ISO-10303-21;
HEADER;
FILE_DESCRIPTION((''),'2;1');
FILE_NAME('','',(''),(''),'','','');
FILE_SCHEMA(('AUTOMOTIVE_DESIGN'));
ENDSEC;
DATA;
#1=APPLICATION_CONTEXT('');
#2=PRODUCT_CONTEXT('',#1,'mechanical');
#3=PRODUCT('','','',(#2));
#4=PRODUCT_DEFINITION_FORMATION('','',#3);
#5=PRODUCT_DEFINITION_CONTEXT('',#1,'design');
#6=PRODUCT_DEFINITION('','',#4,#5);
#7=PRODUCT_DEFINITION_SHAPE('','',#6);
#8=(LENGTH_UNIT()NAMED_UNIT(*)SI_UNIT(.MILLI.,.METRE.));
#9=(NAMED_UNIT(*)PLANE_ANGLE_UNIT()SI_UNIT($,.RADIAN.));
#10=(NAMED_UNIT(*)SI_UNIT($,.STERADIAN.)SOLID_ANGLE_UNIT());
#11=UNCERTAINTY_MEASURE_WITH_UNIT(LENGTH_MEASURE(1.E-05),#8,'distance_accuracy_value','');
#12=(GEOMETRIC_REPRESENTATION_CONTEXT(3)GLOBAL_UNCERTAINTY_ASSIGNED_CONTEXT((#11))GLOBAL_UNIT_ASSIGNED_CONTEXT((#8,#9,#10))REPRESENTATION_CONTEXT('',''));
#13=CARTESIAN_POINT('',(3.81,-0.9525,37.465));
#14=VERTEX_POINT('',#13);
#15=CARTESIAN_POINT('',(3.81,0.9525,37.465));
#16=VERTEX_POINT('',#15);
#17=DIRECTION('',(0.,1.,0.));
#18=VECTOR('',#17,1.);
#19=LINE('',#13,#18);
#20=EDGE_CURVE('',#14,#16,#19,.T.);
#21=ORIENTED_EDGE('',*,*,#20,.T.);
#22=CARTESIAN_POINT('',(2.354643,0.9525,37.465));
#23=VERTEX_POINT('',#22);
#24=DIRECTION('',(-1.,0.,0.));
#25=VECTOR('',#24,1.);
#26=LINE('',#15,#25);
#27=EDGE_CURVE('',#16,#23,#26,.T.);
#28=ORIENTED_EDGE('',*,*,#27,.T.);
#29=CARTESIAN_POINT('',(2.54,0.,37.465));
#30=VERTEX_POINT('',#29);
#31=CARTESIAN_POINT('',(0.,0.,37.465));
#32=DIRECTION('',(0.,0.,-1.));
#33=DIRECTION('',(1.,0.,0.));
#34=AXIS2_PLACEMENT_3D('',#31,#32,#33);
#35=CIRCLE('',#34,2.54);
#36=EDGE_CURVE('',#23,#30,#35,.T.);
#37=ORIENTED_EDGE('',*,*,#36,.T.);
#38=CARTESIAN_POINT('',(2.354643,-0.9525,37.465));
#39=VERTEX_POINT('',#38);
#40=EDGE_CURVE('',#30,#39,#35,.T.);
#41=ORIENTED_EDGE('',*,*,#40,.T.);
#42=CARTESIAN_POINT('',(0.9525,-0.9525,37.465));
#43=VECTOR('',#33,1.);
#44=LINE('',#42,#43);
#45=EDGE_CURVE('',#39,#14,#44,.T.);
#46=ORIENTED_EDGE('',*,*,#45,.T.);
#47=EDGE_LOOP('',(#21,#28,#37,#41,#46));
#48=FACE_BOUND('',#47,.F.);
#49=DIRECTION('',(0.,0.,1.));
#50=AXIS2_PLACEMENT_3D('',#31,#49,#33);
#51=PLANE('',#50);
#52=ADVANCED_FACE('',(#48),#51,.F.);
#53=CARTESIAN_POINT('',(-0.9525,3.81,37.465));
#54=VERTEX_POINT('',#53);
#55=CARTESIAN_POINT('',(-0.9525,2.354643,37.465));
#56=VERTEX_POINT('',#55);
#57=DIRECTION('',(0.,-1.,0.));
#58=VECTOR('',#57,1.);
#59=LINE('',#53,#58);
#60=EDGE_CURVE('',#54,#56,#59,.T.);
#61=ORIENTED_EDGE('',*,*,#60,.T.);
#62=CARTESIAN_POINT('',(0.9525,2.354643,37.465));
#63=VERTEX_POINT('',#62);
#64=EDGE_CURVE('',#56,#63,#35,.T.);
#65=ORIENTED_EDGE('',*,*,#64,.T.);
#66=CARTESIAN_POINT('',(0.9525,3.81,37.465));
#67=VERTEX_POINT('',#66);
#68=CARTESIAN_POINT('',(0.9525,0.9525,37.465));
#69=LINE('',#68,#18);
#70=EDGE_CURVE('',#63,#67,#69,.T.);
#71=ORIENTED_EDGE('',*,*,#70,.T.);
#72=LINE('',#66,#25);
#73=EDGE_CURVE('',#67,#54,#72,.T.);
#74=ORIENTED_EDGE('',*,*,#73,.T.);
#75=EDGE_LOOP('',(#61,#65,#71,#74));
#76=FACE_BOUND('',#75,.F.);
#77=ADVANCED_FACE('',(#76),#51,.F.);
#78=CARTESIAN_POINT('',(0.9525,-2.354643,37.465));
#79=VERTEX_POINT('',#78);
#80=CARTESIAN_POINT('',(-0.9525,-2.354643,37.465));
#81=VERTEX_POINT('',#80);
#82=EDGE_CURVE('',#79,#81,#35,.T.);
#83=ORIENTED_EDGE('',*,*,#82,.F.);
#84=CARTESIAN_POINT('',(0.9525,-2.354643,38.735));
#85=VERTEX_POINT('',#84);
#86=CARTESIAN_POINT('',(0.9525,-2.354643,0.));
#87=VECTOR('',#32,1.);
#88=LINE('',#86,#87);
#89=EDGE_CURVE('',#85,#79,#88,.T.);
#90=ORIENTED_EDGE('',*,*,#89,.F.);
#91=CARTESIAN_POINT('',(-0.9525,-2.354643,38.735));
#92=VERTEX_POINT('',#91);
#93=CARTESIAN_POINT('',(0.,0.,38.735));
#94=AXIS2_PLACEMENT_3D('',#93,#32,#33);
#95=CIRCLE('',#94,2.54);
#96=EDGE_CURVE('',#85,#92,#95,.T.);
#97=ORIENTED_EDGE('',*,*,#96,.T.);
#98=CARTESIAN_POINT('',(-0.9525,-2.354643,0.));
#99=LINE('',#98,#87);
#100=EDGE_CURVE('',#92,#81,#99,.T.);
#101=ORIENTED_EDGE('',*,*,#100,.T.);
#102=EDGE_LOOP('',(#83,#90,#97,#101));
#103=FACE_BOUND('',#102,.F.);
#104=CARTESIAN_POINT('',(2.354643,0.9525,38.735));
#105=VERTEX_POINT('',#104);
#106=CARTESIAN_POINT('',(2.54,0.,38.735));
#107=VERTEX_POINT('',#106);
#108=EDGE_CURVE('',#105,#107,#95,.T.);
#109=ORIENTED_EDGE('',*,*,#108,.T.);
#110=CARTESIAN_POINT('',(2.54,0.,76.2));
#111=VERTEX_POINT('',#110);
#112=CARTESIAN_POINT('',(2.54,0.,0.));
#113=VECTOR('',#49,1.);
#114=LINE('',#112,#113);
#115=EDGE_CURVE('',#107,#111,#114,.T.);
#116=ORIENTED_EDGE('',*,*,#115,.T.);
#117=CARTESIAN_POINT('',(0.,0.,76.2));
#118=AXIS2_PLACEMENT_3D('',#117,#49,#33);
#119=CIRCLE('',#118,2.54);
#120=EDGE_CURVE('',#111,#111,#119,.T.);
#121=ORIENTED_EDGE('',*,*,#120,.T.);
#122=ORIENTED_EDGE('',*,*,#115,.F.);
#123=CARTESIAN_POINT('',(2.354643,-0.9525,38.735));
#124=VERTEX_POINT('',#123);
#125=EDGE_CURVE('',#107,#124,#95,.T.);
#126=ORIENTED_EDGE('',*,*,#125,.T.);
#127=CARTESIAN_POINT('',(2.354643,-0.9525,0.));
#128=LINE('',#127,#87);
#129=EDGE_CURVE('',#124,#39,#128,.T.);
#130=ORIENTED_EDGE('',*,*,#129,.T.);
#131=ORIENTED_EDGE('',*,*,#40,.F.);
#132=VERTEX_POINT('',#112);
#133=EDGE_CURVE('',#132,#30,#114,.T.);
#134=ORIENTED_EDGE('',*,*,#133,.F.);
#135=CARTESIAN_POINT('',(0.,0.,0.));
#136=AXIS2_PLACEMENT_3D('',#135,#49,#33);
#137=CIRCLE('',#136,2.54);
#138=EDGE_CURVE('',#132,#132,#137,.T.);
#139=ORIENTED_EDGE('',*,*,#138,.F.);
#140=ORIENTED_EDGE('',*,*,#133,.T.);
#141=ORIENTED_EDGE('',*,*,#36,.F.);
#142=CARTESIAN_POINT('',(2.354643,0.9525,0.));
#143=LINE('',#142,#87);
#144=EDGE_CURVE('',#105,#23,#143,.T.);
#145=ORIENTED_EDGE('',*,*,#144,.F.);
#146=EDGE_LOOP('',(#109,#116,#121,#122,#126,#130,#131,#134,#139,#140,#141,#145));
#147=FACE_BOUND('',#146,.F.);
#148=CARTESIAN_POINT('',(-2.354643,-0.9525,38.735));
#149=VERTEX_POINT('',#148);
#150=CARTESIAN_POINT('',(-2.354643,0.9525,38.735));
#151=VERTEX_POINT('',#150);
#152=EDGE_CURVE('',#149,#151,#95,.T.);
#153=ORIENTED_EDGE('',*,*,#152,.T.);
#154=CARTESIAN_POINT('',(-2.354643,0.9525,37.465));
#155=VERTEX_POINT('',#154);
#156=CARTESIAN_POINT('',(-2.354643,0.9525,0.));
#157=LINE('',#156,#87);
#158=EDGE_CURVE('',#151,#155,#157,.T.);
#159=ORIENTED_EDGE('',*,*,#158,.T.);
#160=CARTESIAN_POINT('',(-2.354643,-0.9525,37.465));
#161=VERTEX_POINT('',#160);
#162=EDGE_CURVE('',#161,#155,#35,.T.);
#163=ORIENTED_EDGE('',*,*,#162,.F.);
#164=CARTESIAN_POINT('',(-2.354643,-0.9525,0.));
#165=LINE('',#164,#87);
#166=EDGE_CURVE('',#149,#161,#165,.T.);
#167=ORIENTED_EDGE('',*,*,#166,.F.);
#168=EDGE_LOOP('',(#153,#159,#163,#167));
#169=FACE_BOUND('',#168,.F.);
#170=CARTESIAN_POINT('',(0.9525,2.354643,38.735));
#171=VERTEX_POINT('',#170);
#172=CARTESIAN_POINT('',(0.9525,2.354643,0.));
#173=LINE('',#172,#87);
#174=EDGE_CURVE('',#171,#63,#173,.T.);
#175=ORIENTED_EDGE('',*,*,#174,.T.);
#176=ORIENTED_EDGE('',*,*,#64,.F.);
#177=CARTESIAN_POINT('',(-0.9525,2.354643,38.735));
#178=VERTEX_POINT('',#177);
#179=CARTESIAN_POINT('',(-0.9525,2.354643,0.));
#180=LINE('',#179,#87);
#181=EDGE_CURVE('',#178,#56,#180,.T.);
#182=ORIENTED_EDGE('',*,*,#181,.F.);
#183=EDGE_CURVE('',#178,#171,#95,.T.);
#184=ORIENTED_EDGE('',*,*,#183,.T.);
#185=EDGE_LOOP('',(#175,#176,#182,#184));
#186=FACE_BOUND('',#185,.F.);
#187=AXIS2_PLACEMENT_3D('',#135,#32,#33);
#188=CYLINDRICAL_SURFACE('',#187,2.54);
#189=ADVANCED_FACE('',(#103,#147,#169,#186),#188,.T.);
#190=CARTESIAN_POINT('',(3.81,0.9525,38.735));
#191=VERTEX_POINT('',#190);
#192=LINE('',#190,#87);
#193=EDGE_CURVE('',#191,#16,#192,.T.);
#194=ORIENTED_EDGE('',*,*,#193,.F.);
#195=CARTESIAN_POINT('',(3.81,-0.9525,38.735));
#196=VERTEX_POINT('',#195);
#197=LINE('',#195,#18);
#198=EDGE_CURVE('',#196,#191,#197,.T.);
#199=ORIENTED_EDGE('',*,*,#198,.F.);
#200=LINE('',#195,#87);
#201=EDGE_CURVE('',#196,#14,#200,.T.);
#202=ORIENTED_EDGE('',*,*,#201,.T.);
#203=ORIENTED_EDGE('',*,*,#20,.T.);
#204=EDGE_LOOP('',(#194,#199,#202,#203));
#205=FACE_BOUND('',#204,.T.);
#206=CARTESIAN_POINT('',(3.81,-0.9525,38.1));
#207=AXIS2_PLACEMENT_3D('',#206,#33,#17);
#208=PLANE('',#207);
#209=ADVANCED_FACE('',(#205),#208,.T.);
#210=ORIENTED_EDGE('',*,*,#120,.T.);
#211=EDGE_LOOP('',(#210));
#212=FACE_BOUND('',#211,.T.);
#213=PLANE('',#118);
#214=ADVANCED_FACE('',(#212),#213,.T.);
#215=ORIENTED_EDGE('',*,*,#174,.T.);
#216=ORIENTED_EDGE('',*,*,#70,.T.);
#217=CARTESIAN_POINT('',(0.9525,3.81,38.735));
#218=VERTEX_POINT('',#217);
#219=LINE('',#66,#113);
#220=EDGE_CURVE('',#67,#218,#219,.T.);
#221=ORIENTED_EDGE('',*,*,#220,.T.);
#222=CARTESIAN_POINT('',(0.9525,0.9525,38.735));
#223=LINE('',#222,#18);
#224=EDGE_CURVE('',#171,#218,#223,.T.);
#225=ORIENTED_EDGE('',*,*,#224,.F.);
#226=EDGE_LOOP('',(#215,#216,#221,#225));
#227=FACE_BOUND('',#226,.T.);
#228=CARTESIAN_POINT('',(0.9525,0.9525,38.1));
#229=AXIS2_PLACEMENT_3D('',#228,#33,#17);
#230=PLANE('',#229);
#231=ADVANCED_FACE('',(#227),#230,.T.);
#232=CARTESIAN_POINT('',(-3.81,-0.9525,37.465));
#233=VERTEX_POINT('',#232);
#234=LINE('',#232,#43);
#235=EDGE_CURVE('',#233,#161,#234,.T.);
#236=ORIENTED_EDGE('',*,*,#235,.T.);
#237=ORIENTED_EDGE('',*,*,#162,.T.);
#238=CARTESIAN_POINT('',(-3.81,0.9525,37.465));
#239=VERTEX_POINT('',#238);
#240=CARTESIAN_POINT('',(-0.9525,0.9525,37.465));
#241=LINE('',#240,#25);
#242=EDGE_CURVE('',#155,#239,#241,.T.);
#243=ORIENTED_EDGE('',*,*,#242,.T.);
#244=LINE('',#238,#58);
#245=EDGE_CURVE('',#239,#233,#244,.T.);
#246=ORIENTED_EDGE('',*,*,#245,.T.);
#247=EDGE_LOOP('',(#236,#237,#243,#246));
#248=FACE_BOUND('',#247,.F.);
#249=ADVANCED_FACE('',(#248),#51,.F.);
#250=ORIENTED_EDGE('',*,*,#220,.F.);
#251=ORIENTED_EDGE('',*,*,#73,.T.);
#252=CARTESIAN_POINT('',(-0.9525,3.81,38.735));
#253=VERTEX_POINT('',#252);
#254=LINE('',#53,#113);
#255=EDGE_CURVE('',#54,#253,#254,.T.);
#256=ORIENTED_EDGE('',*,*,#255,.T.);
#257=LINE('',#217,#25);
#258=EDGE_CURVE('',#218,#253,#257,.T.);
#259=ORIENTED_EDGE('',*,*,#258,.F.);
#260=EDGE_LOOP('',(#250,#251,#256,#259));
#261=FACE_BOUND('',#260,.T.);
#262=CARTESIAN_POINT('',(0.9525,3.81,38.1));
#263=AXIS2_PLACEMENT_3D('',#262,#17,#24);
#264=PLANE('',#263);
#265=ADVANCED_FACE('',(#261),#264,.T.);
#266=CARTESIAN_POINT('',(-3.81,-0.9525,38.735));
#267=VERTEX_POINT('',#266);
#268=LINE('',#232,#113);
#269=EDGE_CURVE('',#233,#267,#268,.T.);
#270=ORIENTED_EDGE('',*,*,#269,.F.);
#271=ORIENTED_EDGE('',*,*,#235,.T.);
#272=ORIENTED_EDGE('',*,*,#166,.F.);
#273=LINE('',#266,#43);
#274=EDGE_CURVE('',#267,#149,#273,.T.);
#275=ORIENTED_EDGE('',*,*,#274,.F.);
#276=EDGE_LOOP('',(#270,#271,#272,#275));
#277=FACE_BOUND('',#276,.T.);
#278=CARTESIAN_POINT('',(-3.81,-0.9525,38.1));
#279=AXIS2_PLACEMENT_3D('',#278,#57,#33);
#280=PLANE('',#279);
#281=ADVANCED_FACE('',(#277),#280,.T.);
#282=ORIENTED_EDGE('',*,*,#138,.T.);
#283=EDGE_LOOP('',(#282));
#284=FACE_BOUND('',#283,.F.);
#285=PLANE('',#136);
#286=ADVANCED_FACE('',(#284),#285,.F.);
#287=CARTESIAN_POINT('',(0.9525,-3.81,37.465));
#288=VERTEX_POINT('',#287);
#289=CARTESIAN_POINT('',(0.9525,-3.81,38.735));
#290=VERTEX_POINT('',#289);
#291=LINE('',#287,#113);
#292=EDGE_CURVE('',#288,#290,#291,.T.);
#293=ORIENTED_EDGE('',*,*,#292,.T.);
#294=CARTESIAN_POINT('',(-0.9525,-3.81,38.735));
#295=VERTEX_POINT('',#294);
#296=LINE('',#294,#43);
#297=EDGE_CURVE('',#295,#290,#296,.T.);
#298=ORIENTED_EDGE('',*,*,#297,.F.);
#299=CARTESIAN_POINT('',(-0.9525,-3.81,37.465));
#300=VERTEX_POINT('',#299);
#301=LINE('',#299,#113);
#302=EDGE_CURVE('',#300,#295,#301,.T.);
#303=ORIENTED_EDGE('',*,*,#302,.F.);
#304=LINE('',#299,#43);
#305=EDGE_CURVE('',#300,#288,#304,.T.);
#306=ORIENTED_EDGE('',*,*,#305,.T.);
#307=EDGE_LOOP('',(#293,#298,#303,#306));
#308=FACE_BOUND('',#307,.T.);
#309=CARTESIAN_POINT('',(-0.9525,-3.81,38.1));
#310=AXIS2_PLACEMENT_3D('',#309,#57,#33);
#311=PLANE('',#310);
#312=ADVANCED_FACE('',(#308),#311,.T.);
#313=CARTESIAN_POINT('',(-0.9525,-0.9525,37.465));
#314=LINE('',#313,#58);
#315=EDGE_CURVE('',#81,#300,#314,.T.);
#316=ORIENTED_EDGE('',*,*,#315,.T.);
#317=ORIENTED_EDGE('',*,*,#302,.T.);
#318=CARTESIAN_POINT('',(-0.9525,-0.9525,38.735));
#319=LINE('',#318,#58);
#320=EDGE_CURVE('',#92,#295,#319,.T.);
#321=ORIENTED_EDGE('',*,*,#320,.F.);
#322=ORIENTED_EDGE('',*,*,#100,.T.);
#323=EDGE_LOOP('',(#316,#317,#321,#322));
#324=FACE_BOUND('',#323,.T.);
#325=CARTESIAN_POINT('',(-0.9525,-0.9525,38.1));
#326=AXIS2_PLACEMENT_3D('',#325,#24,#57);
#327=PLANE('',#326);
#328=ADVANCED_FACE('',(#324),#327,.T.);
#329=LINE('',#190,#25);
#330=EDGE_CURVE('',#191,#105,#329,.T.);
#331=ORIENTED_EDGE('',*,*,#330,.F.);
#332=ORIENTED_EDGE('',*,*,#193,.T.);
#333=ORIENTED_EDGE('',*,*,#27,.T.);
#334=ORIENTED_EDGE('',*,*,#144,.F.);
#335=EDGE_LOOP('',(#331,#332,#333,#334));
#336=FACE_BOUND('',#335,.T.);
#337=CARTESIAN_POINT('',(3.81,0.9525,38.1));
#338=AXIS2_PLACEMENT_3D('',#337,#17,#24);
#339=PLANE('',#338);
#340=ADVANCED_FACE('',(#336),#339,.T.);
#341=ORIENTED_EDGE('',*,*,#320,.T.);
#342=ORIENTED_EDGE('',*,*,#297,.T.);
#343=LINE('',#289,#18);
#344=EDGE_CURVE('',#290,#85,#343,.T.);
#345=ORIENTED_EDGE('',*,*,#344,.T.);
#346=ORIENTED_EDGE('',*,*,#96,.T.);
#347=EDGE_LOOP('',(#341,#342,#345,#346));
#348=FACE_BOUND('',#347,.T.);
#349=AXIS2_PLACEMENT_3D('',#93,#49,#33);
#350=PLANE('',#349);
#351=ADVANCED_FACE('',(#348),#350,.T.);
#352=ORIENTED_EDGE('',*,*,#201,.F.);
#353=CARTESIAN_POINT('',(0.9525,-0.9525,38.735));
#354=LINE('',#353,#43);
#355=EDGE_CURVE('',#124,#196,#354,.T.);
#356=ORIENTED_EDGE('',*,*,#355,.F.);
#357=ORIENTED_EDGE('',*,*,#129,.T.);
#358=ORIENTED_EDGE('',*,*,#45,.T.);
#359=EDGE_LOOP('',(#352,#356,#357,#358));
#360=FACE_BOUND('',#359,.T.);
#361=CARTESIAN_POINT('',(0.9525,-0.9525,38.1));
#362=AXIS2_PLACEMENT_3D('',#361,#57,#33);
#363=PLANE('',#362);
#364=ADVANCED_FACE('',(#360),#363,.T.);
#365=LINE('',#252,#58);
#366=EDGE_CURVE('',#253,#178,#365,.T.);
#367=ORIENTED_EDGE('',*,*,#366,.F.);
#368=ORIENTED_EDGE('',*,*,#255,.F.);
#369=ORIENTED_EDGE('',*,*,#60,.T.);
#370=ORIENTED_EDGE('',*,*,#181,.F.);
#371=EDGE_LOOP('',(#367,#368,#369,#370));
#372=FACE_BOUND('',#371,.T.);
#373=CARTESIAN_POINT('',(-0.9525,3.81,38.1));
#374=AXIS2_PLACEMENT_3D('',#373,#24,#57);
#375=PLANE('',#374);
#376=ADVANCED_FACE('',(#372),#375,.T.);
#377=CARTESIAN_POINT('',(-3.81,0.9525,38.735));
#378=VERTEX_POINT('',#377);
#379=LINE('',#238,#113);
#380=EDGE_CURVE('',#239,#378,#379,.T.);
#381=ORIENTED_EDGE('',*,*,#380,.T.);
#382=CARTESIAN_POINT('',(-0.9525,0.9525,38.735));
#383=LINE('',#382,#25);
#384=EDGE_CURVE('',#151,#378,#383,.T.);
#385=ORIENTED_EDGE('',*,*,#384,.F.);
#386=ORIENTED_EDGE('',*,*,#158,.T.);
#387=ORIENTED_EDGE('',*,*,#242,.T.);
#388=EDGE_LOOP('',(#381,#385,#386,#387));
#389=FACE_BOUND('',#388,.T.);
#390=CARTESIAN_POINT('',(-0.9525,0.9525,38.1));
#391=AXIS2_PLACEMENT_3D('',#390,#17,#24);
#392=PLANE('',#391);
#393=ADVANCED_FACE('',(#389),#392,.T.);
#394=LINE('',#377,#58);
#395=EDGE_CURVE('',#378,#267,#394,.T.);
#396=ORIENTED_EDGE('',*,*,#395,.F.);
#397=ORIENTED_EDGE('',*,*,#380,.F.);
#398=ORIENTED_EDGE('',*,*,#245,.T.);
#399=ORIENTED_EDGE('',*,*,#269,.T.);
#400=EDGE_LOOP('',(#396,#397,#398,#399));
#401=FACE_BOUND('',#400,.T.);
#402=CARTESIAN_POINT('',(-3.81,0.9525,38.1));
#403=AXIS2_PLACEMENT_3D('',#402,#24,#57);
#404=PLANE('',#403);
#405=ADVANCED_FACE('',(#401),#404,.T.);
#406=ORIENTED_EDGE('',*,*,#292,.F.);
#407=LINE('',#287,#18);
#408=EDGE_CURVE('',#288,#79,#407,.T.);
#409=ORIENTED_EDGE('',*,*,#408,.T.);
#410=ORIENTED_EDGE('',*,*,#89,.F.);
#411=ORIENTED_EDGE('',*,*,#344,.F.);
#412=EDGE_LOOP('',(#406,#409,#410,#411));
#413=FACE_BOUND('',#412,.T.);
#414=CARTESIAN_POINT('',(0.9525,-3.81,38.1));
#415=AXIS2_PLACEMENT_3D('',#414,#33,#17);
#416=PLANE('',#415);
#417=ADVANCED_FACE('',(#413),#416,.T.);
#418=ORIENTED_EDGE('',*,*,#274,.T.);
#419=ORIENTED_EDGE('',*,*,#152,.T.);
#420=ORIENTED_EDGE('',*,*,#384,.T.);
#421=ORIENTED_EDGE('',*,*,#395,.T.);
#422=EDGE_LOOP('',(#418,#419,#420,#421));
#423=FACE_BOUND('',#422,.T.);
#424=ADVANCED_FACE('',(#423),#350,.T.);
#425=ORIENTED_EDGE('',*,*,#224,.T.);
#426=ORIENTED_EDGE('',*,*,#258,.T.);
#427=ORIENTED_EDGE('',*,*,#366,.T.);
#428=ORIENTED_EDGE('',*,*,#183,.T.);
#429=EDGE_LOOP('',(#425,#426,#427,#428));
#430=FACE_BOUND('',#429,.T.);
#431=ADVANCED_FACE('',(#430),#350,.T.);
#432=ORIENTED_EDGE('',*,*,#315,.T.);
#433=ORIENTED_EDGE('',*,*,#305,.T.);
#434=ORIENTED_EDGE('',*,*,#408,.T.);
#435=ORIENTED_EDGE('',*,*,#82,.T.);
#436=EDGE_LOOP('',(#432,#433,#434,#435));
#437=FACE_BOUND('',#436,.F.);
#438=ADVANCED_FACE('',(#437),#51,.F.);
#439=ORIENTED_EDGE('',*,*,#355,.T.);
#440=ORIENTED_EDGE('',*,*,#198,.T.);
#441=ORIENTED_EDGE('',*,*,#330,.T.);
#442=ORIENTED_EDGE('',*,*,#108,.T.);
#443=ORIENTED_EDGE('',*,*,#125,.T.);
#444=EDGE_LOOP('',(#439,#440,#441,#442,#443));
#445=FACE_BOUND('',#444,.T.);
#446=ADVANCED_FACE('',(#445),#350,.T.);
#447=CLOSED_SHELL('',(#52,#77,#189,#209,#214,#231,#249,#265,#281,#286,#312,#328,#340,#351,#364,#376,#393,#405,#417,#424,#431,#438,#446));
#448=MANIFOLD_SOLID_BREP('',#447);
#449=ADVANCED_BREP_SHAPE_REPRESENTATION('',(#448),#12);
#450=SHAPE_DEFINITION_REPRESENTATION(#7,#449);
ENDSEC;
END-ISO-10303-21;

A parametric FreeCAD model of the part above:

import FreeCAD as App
import Part
import Sketcher

V = App.Vector
Q = App.Units.Quantity


def add_polygon(sketch, points):
    """Adds a closed chain of lines whose ends are joined by coincident constraints."""
    first, n = sketch.GeometryCount, len(points)
    for a, b in zip(points, points[1:] + points[:1]):
        sketch.addGeometry(Part.LineSegment(App.Vector(*a, 0), App.Vector(*b, 0)), False)
    for i in range(n):
        sketch.addConstraint(Sketcher.Constraint("Coincident", first + i, 2, first + (i + 1) % n, 1))

doc = App.newDocument("Part")
body = doc.addObject("PartDesign::Body", "Body")

# Sketch on XY plane
sketch1 = body.newObject("Sketcher::SketchObject", "Sketch")
sketch1.AttachmentSupport = (doc.getObject("XY_Plane"), [""])
sketch1.MapMode = "FlatFace"
sketch1.addGeometry(Part.Circle(V(0, 0, 0), V(0, 0, 1), 2.5), False)
sketch1.addConstraint([
    Sketcher.Constraint("Coincident", 0, 3, -1, 1),
    Sketcher.Constraint("Diameter", 0, Q("0.2 in")),
])
pad1 = body.newObject("PartDesign::Pad", "Pad")
pad1.Profile = sketch1
pad1.Length = Q("3 in")

# Sketch on XY plane
sketch2 = body.newObject("Sketcher::SketchObject", "Sketch001")
sketch2.AttachmentSupport = (doc.getObject("XY_Plane"), [""])
sketch2.MapMode = "FlatFace"
sketch2.AttachmentOffset = App.Placement(V(0, 0, 1.5 * 25.4), App.Rotation())
add_polygon(sketch2, [(1, 1), (1, 3.8), (-1, 3.8), (-1, 1), (-3.8, 1), (-3.8, -1), (-1, -1), (-1, -3.8), (1, -3.8), (1, -1), (3.8, -1), (3.8, 1)])  # lines 0-11
sketch2.addConstraint([
    Sketcher.Constraint("Vertical", 0),
    Sketcher.Constraint("Horizontal", 1),
    Sketcher.Constraint("Vertical", 2),
    Sketcher.Constraint("Horizontal", 3),
    Sketcher.Constraint("Vertical", 4),
    Sketcher.Constraint("Horizontal", 5),
    Sketcher.Constraint("Vertical", 6),
    Sketcher.Constraint("Horizontal", 7),
    Sketcher.Constraint("Vertical", 8),
    Sketcher.Constraint("Horizontal", 9),
    Sketcher.Constraint("Vertical", 10),
    Sketcher.Constraint("Horizontal", 11),
    Sketcher.Constraint("Symmetric", 0, 2, 6, 2, -1, 1),
    Sketcher.Constraint("Symmetric", 2, 2, 8, 2, -1, 1),
    Sketcher.Constraint("Symmetric", 4, 2, 10, 2, -1, 1),
    Sketcher.Constraint("Symmetric", 5, 2, 8, 2, -2),
    Sketcher.Constraint("Equal", 11, 0),
    Sketcher.Constraint("Equal", 7, 4),
    Sketcher.Constraint("DistanceY", 6, 2, 1, 2, Q("0.3 in")),
    Sketcher.Constraint("DistanceX", 1, 2, 1, 1, Q("0.075 in")),
])
pad2 = body.newObject("PartDesign::Pad", "Pad001")
pad2.Profile = sketch2
pad2.Length = Q("0.05 in")
pad2.Midplane = True

doc.recompute()
